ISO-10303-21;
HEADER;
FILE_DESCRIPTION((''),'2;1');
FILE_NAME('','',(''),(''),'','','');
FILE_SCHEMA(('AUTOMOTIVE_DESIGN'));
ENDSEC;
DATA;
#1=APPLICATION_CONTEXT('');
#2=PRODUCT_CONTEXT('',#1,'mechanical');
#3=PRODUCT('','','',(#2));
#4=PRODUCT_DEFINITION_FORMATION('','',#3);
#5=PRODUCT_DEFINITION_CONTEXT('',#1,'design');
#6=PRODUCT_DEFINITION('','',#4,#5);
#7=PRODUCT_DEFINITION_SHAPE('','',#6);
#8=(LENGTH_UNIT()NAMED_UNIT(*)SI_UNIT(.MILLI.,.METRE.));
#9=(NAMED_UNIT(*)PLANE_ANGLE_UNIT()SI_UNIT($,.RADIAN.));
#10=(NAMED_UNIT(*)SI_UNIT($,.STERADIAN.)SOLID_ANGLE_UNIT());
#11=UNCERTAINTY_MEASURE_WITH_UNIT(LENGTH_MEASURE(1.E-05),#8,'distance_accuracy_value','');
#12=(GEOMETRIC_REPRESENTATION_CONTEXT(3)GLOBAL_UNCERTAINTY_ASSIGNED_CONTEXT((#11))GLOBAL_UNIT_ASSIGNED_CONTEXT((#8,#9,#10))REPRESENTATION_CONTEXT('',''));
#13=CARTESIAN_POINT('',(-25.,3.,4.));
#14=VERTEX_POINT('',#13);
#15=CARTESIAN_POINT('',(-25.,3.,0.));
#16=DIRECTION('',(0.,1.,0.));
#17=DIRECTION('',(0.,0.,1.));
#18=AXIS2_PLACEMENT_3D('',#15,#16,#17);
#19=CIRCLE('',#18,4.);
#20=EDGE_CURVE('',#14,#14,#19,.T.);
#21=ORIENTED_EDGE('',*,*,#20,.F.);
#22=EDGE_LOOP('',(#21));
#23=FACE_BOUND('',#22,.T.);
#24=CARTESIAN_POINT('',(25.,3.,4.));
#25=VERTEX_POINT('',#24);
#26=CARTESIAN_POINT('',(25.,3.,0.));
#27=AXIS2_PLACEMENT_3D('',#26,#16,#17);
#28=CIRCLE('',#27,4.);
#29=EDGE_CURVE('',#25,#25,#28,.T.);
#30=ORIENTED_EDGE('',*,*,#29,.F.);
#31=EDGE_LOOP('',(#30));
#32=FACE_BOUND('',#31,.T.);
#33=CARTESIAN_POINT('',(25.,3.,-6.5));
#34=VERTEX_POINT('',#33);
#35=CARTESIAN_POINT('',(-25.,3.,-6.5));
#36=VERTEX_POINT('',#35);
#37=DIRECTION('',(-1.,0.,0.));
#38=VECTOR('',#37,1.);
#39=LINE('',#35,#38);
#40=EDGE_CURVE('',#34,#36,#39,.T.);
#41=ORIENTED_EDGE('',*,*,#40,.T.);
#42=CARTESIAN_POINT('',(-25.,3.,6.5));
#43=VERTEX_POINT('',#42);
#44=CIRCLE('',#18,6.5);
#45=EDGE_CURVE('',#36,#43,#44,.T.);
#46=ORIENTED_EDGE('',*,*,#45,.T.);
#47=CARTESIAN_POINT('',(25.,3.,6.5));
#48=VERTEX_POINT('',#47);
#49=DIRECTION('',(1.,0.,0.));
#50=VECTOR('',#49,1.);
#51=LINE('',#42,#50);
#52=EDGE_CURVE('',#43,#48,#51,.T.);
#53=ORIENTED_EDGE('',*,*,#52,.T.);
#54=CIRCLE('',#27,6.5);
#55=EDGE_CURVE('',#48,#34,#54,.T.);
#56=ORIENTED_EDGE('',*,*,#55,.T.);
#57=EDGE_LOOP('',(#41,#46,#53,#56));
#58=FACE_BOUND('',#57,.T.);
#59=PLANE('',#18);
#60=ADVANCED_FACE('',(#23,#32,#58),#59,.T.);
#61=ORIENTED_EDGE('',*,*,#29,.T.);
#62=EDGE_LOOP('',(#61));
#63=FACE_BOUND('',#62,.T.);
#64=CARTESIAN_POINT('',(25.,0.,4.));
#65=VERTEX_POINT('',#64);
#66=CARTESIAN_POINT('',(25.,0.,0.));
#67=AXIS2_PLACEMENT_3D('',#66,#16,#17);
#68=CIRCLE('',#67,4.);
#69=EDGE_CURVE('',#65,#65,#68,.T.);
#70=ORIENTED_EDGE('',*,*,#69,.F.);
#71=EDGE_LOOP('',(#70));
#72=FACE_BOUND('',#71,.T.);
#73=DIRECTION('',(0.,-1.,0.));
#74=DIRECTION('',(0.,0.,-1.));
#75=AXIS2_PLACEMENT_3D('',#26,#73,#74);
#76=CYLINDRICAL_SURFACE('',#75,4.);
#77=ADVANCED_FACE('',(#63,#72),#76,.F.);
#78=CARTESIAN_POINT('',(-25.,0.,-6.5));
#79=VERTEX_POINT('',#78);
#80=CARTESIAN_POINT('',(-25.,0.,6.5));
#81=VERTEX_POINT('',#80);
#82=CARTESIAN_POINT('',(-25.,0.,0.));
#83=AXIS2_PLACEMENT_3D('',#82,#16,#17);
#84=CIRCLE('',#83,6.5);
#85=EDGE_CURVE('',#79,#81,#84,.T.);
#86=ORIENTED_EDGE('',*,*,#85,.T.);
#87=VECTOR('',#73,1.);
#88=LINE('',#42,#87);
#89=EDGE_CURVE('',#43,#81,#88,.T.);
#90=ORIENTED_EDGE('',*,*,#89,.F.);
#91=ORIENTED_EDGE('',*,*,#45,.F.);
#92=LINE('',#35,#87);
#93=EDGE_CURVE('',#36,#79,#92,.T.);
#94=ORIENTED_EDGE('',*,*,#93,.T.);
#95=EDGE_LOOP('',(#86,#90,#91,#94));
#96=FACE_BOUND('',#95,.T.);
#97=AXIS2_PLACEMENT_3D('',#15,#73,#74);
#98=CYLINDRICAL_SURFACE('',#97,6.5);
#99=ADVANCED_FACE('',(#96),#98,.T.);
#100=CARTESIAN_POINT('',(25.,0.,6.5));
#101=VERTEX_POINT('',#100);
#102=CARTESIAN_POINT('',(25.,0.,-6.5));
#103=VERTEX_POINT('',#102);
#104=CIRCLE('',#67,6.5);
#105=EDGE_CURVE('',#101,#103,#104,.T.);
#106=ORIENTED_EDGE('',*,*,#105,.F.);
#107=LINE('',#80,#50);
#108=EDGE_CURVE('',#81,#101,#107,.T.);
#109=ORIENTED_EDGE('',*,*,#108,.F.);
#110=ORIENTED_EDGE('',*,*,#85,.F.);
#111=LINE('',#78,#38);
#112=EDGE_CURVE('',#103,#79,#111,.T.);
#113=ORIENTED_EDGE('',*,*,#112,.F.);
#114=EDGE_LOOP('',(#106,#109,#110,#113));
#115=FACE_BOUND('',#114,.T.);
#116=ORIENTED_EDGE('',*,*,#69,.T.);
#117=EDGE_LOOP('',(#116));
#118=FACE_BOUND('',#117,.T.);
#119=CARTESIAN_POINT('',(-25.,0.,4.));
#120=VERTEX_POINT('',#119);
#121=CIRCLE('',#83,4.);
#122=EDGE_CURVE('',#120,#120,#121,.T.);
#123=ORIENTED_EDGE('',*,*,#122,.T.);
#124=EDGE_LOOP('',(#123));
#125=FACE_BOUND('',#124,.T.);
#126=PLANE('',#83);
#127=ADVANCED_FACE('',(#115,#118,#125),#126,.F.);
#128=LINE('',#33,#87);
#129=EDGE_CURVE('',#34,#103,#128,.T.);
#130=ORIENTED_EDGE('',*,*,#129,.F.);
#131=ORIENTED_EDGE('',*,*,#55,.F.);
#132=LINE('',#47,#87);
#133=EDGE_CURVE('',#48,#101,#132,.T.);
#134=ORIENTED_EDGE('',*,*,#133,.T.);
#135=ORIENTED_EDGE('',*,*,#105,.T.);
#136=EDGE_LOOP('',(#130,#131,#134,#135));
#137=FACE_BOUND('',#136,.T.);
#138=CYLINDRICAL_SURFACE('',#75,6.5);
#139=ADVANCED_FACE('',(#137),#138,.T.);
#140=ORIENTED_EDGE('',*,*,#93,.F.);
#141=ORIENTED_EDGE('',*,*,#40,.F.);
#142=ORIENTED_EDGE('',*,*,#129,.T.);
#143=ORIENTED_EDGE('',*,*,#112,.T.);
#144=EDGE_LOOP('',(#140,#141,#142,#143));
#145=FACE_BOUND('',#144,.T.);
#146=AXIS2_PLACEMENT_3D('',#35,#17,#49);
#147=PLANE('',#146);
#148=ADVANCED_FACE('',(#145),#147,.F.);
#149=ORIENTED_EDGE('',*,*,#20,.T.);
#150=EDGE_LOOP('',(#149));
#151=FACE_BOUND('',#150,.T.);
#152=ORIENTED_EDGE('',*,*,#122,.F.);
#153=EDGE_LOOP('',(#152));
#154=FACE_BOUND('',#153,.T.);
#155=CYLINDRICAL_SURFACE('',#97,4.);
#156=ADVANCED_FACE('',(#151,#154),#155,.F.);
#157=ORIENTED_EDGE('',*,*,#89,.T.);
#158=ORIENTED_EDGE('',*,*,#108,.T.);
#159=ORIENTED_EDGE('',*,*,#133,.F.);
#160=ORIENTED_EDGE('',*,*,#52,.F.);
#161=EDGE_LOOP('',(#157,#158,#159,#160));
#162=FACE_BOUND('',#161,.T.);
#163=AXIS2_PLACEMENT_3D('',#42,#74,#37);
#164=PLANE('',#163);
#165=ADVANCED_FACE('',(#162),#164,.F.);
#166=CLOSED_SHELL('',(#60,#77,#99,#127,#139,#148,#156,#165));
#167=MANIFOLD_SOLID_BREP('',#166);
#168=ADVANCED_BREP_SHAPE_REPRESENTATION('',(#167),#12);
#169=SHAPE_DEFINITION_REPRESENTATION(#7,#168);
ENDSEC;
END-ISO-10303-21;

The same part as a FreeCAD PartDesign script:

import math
import FreeCAD as App
import Part
import Sketcher
from FreeCAD import Vector

doc = App.newDocument("Part")
params = doc.addObject("Spreadsheet::Sheet", "Params")
for row, (alias, value) in enumerate([
    ("sketch1_diameter", "8 mm"),
    ("sketch1_radius", "6.5 mm"),
    ("sketch1_width", "50 mm"),
    ("pad1_length", "3 mm"),
], start=1):
    params.set(f"A{row}", alias)
    params.set(f"B{row}", "=" + value)
    params.setAlias(f"B{row}", alias)

body = doc.addObject("PartDesign::Body", "Body")

# Sketch on XZ plane
sketch1 = body.newObject("Sketcher::SketchObject", "Sketch")
sketch1.AttachmentSupport = (doc.getObject("XZ_Plane"), [""])
sketch1.MapMode = "FlatFace"
sketch1.addGeometry([
    Part.LineSegment(Vector(25, -6.5, 0), Vector(-25, -6.5, 0)),  # 0
    Part.ArcOfCircle(Part.Circle(Vector(-25, 0, 0), Vector(0, 0, 1), 6.5), math.radians(90), math.radians(270)),  # 1
    Part.LineSegment(Vector(-25, 6.5, 0), Vector(25, 6.5, 0)),  # 2
    Part.ArcOfCircle(Part.Circle(Vector(25, 0, 0), Vector(0, 0, 1), 6.5), math.radians(-90), math.radians(90)),  # 3
    Part.Circle(Vector(25, 0, 0), Vector(0, 0, 1), 4),  # 4
    Part.Circle(Vector(-25, 0, 0), Vector(0, 0, 1), 4),  # 5
], False)
sketch1.addConstraint([
    Sketcher.Constraint("Tangent", 0, 2, 1, 2),
    Sketcher.Constraint("Tangent", 1, 1, 2, 1),
    Sketcher.Constraint("Tangent", 2, 2, 3, 2),
    Sketcher.Constraint("Tangent", 3, 1, 0, 1),
    Sketcher.Constraint("Horizontal", 0),
    Sketcher.Constraint("Horizontal", 2),
    Sketcher.Constraint("Coincident", 4, 3, 3, 3),
    Sketcher.Constraint("Coincident", 5, 3, 1, 3),
    Sketcher.Constraint("Equal", 4, 5),
    Sketcher.Constraint("Symmetric", 1, 3, 3, 3, -1, 1),
    Sketcher.Constraint("Diameter", 4, 8.0),
    Sketcher.Constraint("Radius", 1, 6.5),
    Sketcher.Constraint("DistanceX", 0, 2, 0, 1, 50.0),
])
sketch1.setExpression("Constraints[10]", "Params.sketch1_diameter")
sketch1.setExpression("Constraints[11]", "Params.sketch1_radius")
sketch1.setExpression("Constraints[12]", "Params.sketch1_width")
pad1 = body.newObject("PartDesign::Pad", "Pad")
pad1.Profile = sketch1
pad1.setExpression("Length", "Params.pad1_length")
pad1.Reversed = True

doc.recompute()
